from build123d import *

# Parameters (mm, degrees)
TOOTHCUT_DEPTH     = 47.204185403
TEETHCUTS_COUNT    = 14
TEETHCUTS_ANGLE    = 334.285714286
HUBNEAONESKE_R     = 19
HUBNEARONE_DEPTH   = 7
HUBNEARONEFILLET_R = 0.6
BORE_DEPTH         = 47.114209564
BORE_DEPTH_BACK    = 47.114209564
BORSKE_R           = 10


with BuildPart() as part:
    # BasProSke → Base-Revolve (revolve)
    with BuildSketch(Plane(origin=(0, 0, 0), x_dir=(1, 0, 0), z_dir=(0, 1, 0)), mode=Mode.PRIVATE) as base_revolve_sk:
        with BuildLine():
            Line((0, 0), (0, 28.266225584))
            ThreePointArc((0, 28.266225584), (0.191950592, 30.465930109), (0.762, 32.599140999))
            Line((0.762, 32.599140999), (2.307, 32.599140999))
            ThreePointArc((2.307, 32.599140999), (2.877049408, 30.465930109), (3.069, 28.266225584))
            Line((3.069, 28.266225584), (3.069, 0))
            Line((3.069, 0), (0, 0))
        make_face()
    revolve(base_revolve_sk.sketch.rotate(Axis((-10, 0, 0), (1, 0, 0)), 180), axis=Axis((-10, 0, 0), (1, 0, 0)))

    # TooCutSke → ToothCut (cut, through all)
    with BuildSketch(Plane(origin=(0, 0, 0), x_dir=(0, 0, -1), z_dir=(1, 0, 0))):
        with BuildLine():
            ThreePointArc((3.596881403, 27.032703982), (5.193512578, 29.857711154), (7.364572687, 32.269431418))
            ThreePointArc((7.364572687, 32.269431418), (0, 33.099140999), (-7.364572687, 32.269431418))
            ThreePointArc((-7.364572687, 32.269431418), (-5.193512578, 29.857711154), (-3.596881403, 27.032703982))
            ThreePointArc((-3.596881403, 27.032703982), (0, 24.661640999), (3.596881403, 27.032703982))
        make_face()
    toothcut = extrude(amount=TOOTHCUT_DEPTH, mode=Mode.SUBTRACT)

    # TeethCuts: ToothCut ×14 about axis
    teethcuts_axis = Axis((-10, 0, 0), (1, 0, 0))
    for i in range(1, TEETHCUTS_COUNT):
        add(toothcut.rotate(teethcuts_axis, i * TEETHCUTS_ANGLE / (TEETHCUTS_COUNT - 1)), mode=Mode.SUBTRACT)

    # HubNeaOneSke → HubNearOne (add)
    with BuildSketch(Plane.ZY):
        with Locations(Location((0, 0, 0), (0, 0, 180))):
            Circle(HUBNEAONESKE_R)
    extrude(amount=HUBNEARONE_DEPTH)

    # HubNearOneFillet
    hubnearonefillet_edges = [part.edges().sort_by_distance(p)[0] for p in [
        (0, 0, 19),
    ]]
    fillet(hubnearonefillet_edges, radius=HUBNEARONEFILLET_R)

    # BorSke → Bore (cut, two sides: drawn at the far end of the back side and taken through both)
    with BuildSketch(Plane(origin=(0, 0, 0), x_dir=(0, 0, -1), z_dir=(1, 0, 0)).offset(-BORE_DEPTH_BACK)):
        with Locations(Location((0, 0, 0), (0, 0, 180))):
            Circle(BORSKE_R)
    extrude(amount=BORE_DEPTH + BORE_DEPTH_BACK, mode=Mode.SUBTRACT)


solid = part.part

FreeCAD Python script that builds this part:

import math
import FreeCAD as App
import Part
import Sketcher
from FreeCAD import Vector


def edges_at(feature, points):
    """Names of the edges that pass closest to the given points."""
    edges = feature.Shape.Edges
    near = lambda p: min(range(len(edges)), key=lambda i: edges[i].distToShape(Part.Vertex(*p))[0])
    return sorted({f"Edge{near(p) + 1}" for p in points})

doc = App.newDocument("Part")
body = doc.addObject("PartDesign::Body", "Body")

sketch1 = body.newObject("Sketcher::SketchObject", "Sketch")
sketch1.AttachmentSupport = (doc.getObject("XZ_Plane"), [""])
sketch1.MapMode = "FlatFace"
sketch1.addGeometry([
    Part.LineSegment(Vector(0, -28.3, 0), Vector(0, 0, 0)),
    Part.LineSegment(Vector(0, 0, 0), Vector(3.1, 0, 0)),
    Part.LineSegment(Vector(3.1, 0, 0), Vector(3.1, -28.3, 0)),
    Part.ArcOfCircle(Part.Circle(Vector(-9.6, -28.3, 0), Vector(0, 0, 1), 12.7), math.radians(-19.95), math.radians(0)),
    Part.LineSegment(Vector(2.3, -32.6, 0), Vector(0.8, -32.6, 0)),
    Part.ArcOfCircle(Part.Circle(Vector(12.7, -28.3, 0), Vector(0, 0, 1), 12.7), math.radians(-180), math.radians(-160.05)),
], False)
sketch1.addConstraint([
    Sketcher.Constraint("Coincident", 0, 2, 1, 1),
    Sketcher.Constraint("Coincident", 1, 2, 2, 1),
    Sketcher.Constraint("Tangent", 2, 2, 3, 2),
    Sketcher.Constraint("Coincident", 3, 1, 4, 1),
    Sketcher.Constraint("Coincident", 4, 2, 5, 2),
    Sketcher.Constraint("Tangent", 5, 1, 0, 1),
    Sketcher.Constraint("Vertical", 0),
    Sketcher.Constraint("Horizontal", 1),
    Sketcher.Constraint("Vertical", 2),
    Sketcher.Constraint("Horizontal", 4),
    Sketcher.Constraint("Coincident", 0, 2, -1, 1),
    Sketcher.Constraint("Equal", 3, 5),
    Sketcher.Constraint("Horizontal", 3, 3, 5, 3),
    Sketcher.Constraint("Radius", 3, 12.7),
    Sketcher.Constraint("DistanceX", 1, 1, 1, 2, 3.069),
    Sketcher.Constraint("DistanceX", 4, 2, 4, 1, 1.545),
    Sketcher.Constraint("DistanceY", 0, 1, 0, 2, 28.266226),
])
revolution = body.newObject("PartDesign::Revolution", "Revolution")
revolution.Profile = sketch1
revolution.ReferenceAxis = (sketch1, ["H_Axis"])
revolution.Angle = 360

sketch2 = body.newObject("Sketcher::SketchObject", "Sketch001")
sketch2.AttachmentSupport = (doc.getObject("YZ_Plane"), [""])
sketch2.MapMode = "FlatFace"
sketch2.addGeometry([
    Part.ArcOfCircle(Part.Circle(Vector(21.2, -17.3, 0), Vector(0, 0, 1), 14.9), math.radians(42), math.radians(67)),
    Part.ArcOfCircle(Part.Circle(Vector(0, 0, 0), Vector(0, 0, 1), 33.1), math.radians(-13), math.radians(13)),
    Part.ArcOfCircle(Part.Circle(Vector(21.2, 17.3, 0), Vector(0, 0, 1), 14.9), math.radians(-67), math.radians(-42)),
    Part.ArcOfCircle(Part.Circle(Vector(28.6, 0, 0), Vector(0, 0, 1), 3.9), math.radians(113), math.radians(247)),
], False)
sketch2.addConstraint([
    Sketcher.Constraint("Coincident", 0, 1, 1, 1),
    Sketcher.Constraint("Coincident", 1, 2, 2, 2),
    Sketcher.Constraint("Tangent", 2, 1, 3, 1),
    Sketcher.Constraint("Tangent", 3, 2, 0, 2),
    Sketcher.Constraint("Coincident", 1, 3, -1, 1),
    Sketcher.Constraint("Equal", 0, 2),
    Sketcher.Constraint("Symmetric", 0, 3, 2, 3, -1),
    Sketcher.Constraint("Radius", 0, 14.88),
    Sketcher.Constraint("Radius", 1, 33.099141),
    Sketcher.Constraint("Radius", 3, 3.91375),
    Sketcher.Constraint("DistanceX", -1, 1, 0, 3, 21.167438),
    Sketcher.Constraint("DistanceX", -1, 1, 3, 3, 28.575391),
])
pocket1 = body.newObject("PartDesign::Pocket", "Pocket")
pocket1.Profile = sketch2
pocket1.Type = "ThroughAll"
pocket1.Reversed = True
doc.recompute()

polarpattern = body.newObject("PartDesign::PolarPattern", "PolarPattern")
polarpattern.Originals = [pocket1]
polarpattern.Axis = (doc.getObject("X_Axis"), [""])
polarpattern.Angle = 360
polarpattern.Occurrences = 14
body.Tip = polarpattern

sketch3 = body.newObject("Sketcher::SketchObject", "Sketch002")
sketch3.AttachmentSupport = (doc.getObject("YZ_Plane"), [""])
sketch3.MapMode = "FlatFace"
sketch3.addGeometry(Part.Circle(Vector(0, 0, 0), Vector(0, 0, 1), 19), False)
sketch3.addConstraint([
    Sketcher.Constraint("Coincident", 0, 3, -1, 1),
    Sketcher.Constraint("Diameter", 0, 38.0),
])
pad1 = body.newObject("PartDesign::Pad", "Pad")
pad1.Profile = sketch3
pad1.Length = 7
pad1.Reversed = True
doc.recompute()

fillet = body.newObject("PartDesign::Fillet", "Fillet")
fillet.Base = (pad1, edges_at(pad1, [(0, 0, 19)]))
fillet.Radius = 0.6

sketch4 = body.newObject("Sketcher::SketchObject", "Sketch003")
sketch4.AttachmentSupport = (doc.getObject("YZ_Plane"), [""])
sketch4.MapMode = "FlatFace"
sketch4.addGeometry(Part.Circle(Vector(0, 0, 0), Vector(0, 0, 1), 10), False)
sketch4.addConstraint([
    Sketcher.Constraint("Coincident", 0, 3, -1, 1),
    Sketcher.Constraint("Diameter", 0, 20.0),
])
pocket2 = body.newObject("PartDesign::Pocket", "Pocket001")
pocket2.Profile = sketch4
pocket2.Type = "ThroughAll"
pocket2.Midplane = True

doc.recompute()
